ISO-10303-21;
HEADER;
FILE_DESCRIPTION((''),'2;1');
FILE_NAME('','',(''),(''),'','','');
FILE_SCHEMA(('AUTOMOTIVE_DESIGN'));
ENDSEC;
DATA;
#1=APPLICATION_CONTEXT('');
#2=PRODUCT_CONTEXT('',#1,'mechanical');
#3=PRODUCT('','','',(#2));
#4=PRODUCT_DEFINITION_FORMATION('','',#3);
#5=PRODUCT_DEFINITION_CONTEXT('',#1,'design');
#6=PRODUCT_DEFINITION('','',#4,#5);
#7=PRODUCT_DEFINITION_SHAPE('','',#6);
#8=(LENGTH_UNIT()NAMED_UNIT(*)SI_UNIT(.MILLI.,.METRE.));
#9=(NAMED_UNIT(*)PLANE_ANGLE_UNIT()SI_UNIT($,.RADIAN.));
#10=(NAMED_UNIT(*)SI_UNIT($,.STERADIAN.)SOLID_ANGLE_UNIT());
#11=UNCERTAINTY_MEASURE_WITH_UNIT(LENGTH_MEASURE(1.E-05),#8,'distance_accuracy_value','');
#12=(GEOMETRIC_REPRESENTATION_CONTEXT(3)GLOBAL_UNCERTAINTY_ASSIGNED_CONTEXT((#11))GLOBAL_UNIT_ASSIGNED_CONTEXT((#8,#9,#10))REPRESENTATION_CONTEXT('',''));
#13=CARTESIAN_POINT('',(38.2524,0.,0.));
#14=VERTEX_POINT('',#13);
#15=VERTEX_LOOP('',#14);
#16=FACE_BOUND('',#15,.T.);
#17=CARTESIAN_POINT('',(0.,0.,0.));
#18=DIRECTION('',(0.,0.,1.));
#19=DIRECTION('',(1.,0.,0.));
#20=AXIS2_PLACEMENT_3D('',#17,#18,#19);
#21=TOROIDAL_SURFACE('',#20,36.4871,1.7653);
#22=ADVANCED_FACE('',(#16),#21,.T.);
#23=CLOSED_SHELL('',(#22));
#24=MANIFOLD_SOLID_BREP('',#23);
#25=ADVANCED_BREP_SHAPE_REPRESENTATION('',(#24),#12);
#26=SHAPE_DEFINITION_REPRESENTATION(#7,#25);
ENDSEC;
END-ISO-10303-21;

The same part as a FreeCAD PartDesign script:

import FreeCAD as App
import Part
import Sketcher
Q = App.Units.Quantity

doc = App.newDocument("Part")
body = doc.addObject("PartDesign::Body", "Body")

sketch1 = body.newObject("Sketcher::SketchObject", "Sketch")
sketch1.AttachmentSupport = (doc.getObject("YZ_Plane"), [""])
sketch1.MapMode = "FlatFace"
sketch1.addGeometry(Part.Circle(App.Vector(-36.5, 0, 0), App.Vector(0, 0, 1), 1.8), False)
sketch1.addConstraint(Sketcher.Constraint("PointOnObject", 0, 3, -1))
sketch1.addConstraint(Sketcher.Constraint("Diameter", 0, Q("0.139 in")))
sketch1.addConstraint(Sketcher.Constraint("DistanceX", 0, 3, -1, 1, Q("1.4365 in")))
revolution = body.newObject("PartDesign::Revolution", "Revolution")
revolution.Profile = sketch1
revolution.ReferenceAxis = (sketch1, ["V_Axis"])
revolution.Angle = 360

doc.recompute()
